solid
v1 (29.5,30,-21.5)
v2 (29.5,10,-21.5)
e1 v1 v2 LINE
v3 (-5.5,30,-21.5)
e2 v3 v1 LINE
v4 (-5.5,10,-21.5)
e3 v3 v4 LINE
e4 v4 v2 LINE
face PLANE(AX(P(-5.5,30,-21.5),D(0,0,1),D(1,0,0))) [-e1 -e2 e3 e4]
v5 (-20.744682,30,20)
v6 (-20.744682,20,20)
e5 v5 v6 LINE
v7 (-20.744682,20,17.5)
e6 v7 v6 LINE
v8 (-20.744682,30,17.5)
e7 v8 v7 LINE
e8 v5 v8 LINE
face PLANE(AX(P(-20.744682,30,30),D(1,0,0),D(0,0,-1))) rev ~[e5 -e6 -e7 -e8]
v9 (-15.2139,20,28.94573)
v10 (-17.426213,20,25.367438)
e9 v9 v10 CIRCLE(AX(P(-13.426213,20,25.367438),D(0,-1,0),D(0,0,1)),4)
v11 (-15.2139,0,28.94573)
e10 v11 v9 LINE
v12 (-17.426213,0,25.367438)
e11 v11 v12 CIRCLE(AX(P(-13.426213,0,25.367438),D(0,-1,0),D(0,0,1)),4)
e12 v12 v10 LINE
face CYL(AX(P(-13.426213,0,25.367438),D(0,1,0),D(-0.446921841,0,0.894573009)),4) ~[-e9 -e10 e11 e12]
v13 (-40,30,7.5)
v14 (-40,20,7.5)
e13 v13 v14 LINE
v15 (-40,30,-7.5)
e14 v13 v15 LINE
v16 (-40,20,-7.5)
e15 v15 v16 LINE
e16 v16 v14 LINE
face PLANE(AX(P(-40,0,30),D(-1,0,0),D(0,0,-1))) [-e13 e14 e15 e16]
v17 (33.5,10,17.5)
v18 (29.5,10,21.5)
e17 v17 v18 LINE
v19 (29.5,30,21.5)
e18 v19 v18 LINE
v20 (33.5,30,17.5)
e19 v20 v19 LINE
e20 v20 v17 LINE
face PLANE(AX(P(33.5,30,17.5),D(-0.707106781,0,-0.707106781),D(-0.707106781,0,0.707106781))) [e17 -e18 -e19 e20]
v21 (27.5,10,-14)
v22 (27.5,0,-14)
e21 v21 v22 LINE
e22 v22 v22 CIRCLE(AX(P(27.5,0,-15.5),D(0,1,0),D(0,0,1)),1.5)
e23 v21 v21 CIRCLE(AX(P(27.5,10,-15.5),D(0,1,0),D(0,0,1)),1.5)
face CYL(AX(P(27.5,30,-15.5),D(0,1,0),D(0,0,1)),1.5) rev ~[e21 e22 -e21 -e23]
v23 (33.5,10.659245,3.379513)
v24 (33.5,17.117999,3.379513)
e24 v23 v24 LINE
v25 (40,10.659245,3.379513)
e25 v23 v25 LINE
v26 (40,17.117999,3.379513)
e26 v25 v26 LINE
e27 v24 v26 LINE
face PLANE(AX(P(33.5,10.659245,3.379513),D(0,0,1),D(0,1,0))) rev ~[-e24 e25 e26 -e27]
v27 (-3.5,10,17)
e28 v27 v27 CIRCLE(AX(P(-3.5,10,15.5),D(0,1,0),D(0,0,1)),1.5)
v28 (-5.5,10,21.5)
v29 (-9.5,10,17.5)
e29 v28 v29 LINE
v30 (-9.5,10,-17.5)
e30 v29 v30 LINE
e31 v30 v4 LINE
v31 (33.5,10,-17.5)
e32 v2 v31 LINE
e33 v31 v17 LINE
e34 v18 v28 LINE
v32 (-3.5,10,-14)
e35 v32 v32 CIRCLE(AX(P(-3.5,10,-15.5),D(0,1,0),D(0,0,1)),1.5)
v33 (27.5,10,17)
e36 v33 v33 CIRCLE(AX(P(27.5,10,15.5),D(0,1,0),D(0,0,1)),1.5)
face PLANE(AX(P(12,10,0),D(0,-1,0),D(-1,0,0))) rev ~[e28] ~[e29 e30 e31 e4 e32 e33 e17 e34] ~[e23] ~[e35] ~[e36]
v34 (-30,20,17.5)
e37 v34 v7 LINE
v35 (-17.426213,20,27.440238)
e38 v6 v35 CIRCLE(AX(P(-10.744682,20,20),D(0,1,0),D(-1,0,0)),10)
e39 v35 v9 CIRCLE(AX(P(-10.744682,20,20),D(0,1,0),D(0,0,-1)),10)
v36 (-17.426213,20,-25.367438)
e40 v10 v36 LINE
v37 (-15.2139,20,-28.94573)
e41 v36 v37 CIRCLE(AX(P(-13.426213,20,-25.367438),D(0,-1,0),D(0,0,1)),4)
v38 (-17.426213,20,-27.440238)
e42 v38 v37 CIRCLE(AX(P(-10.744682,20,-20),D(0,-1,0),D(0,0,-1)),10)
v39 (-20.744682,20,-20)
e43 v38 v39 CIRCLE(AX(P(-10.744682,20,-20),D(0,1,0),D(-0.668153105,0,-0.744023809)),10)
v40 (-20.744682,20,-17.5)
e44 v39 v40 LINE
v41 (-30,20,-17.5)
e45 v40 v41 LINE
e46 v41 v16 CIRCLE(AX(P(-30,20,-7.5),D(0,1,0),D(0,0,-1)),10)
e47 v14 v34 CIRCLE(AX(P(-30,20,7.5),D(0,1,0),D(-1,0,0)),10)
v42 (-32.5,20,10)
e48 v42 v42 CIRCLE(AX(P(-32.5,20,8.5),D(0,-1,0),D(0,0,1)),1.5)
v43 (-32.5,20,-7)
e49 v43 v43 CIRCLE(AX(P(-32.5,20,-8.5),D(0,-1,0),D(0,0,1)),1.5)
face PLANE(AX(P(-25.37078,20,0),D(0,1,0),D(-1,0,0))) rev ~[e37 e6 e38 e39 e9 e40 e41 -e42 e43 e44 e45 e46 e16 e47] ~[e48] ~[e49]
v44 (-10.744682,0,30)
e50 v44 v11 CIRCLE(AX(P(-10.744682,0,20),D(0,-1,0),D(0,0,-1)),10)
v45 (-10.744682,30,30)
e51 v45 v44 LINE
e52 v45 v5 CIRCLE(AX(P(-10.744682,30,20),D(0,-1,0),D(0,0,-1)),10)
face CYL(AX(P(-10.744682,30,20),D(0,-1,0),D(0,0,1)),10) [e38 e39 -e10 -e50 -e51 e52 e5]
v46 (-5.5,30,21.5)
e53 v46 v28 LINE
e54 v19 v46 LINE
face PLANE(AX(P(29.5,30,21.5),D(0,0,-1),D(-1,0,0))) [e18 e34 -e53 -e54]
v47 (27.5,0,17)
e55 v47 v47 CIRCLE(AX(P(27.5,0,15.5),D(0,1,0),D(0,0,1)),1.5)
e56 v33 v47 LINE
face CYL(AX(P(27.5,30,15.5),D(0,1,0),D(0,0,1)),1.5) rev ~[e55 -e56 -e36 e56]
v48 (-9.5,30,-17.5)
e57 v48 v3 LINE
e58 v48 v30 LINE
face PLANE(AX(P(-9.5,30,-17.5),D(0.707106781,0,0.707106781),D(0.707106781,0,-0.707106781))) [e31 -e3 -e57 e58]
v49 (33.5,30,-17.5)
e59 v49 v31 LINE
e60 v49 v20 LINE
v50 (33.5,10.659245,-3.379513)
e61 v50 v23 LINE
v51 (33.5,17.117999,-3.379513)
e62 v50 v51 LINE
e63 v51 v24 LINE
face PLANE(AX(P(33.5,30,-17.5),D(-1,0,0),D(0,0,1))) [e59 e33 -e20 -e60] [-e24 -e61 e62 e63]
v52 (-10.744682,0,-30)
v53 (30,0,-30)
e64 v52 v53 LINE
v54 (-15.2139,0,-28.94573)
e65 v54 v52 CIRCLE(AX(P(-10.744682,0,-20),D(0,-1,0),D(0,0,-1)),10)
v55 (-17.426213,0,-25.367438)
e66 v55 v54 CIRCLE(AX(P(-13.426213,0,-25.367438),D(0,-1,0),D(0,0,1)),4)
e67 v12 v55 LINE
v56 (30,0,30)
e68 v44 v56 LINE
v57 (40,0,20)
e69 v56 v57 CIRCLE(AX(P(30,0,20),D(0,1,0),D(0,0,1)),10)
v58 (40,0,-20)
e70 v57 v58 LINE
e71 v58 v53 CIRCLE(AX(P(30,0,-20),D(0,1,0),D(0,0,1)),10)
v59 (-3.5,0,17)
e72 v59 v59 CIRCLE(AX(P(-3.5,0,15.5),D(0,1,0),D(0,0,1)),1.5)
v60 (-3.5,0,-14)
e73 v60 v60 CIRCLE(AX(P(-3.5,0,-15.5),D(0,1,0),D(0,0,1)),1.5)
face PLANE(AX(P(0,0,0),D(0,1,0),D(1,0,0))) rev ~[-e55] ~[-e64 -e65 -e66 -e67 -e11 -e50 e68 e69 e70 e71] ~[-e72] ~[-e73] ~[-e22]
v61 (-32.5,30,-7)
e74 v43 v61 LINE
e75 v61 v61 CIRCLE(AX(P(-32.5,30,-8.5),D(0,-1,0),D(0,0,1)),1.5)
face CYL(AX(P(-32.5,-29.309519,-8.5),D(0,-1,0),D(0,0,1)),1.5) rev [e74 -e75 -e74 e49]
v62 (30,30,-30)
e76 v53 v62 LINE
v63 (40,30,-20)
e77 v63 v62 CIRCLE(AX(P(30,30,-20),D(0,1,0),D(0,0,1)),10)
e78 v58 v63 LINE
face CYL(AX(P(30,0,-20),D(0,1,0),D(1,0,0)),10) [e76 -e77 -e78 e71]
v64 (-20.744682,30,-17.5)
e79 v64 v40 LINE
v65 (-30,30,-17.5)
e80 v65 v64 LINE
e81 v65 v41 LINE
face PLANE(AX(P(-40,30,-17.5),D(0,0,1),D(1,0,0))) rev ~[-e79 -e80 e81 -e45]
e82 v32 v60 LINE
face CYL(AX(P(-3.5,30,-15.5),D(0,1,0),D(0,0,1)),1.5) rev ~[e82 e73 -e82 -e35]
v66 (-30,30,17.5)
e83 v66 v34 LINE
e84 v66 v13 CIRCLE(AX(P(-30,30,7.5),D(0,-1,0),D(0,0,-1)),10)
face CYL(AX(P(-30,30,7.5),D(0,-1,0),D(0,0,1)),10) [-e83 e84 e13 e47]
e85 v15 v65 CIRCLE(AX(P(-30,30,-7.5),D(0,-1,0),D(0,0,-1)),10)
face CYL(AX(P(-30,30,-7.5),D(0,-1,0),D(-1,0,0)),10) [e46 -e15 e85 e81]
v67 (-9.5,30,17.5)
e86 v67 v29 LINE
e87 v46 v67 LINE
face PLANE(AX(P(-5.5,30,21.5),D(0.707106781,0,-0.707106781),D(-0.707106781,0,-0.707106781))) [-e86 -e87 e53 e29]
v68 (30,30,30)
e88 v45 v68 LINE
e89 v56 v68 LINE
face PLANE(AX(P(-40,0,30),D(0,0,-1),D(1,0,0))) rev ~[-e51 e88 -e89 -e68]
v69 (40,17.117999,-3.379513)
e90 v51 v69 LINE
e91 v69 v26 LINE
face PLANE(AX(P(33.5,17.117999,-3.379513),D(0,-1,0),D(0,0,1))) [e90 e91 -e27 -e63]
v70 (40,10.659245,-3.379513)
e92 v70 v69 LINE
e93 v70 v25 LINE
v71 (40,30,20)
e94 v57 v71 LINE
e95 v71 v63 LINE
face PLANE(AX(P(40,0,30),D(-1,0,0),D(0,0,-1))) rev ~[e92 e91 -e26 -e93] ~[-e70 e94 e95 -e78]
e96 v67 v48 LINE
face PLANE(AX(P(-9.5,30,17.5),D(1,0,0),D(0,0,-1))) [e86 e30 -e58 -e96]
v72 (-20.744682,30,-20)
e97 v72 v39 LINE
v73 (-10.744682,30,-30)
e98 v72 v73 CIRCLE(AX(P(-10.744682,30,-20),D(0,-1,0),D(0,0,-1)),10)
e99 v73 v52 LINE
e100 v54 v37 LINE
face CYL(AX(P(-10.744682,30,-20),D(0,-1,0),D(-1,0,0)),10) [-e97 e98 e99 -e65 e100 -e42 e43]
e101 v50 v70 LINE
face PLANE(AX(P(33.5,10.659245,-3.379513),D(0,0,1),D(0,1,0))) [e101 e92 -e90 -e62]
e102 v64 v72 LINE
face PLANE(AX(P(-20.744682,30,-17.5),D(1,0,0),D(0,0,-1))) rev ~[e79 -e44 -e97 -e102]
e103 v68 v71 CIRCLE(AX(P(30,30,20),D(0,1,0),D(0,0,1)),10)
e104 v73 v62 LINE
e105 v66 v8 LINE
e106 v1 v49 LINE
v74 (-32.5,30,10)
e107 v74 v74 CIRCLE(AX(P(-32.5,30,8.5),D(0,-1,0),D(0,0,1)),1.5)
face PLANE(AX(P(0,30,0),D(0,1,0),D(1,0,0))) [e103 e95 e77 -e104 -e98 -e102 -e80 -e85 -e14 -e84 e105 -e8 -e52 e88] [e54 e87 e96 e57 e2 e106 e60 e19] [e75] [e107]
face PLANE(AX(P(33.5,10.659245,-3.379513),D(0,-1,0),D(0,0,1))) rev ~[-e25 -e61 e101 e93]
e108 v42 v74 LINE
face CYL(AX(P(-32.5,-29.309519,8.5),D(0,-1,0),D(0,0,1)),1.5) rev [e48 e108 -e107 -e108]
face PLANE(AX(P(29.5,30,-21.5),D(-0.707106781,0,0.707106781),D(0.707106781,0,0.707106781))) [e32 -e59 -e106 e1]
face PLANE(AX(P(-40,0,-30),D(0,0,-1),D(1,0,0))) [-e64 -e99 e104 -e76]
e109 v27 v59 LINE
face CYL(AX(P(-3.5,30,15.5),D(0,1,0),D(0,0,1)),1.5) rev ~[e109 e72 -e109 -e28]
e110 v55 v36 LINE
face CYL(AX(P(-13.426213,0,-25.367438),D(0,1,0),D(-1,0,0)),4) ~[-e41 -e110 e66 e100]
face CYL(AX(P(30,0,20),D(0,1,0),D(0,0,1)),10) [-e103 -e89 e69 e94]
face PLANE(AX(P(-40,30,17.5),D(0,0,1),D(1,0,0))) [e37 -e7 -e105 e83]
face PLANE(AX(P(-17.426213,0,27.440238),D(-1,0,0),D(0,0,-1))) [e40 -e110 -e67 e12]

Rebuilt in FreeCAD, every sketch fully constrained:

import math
import FreeCAD as App
import Part
import Sketcher
from FreeCAD import Vector


def edges_at(feature, points):
    """Names of the edges that pass closest to the given points."""
    edges = feature.Shape.Edges
    near = lambda p: min(range(len(edges)), key=lambda i: edges[i].distToShape(Part.Vertex(*p))[0])
    return sorted({f"Edge{near(p) + 1}" for p in points})


def add_polygon(sketch, points):
    """Adds a closed chain of lines whose ends are joined by coincident constraints."""
    first, n = sketch.GeometryCount, len(points)
    for a, b in zip(points, points[1:] + points[:1]):
        sketch.addGeometry(Part.LineSegment(App.Vector(*a, 0), App.Vector(*b, 0)), False)
    for i in range(n):
        sketch.addConstraint(Sketcher.Constraint("Coincident", first + i, 2, first + (i + 1) % n, 1))

doc = App.newDocument("Part")
params = doc.addObject("Spreadsheet::Sheet", "Params")
for row, (alias, value) in enumerate([
    ("sketch1_width", "80 mm"),
    ("sketch1_height", "60 mm"),
    ("pad1_length", "30 mm"),
    ("fillet_radius", "10 mm"),
    ("sketch2_diameter", "3 mm"),
    ("sketch3_width", "35 mm"),
    ("pocket2_length", "20 mm"),
    ("sketch4_diameter", "3 mm"),
    ("sketch5_height", "12.5 mm"),
    ("fillet2_radius", "10 mm"),
    ("sketch6_radius", "10 mm"),
    ("sketch6_height", "15 mm"),
    ("sketch6_height2", "2.5 mm"),
    ("pocket5_length", "20 mm"),
    ("fillet3_radius", "4 mm"),
], start=1):
    params.set(f"A{row}", alias)
    params.set(f"B{row}", "=" + value)
    params.setAlias(f"B{row}", alias)

body = doc.addObject("PartDesign::Body", "Body")

# Sketch on XZ plane
sketch1 = doc.addObject("Sketcher::SketchObject", "Sketch")
body.addObject(sketch1)
sketch1.AttachmentSupport = (doc.XZ_Plane, [""])
sketch1.MapMode = "FlatFace"
add_polygon(sketch1, [(-40, -30), (-40, 30), (40, 30), (40, -30)])  # lines 0-3
sketch1.addConstraint([
    Sketcher.Constraint("Vertical", 0),
    Sketcher.Constraint("Horizontal", 1),
    Sketcher.Constraint("Vertical", 2),
    Sketcher.Constraint("Horizontal", 3),
    Sketcher.Constraint("Symmetric", 0, 2, 2, 2, -1, 1),
    Sketcher.Constraint("DistanceX", 1, 1, 1, 2, 80.0),
    Sketcher.Constraint("DistanceY", 0, 1, 0, 2, 60.0),
])
sketch1.setExpression("Constraints[9]", "Params.sketch1_width")
sketch1.setExpression("Constraints[10]", "Params.sketch1_height")
pad1 = doc.addObject("PartDesign::Pad", "Pad")
body.addObject(pad1)
pad1.Profile = sketch1
pad1.setExpression("Length", "Params.pad1_length")
pad1.Reversed = True
doc.recompute()

fillet = doc.addObject("PartDesign::Fillet", "Fillet")
body.addObject(fillet)
fillet.Base = (pad1, edges_at(pad1, [(40, 15, 30), (40, 15, -30)]))
fillet.setExpression("Radius", "Params.fillet_radius")

# Sketch on XZ plane
sketch2 = doc.addObject("Sketcher::SketchObject", "Sketch001")
body.addObject(sketch2)
sketch2.AttachmentSupport = (doc.XZ_Plane, [""])
sketch2.MapMode = "FlatFace"
sketch2.AttachmentOffset = App.Placement(Vector(0, 0, -30), App.Rotation())
sketch2.addGeometry([
    Part.Circle(Vector(-3.5, -15.5, 0), Vector(0, 0, 1), 1.5),
    Part.Circle(Vector(27.5, -15.5, 0), Vector(0, 0, 1), 1.5),
    Part.Circle(Vector(-3.5, 15.5, 0), Vector(0, 0, 1), 1.5),
    Part.Circle(Vector(27.5, 15.5, 0), Vector(0, 0, 1), 1.5),
], False)
sketch2.addConstraint([
    Sketcher.Constraint("Equal", 0, 1),
    Sketcher.Constraint("Equal", 1, 2),
    Sketcher.Constraint("Equal", 2, 3),
    Sketcher.Constraint("Symmetric", 0, 3, 2, 3, -1),
    Sketcher.Constraint("Symmetric", 1, 3, 3, 3, -1),
    Sketcher.Constraint("Horizontal", 0, 3, 1, 3),
    Sketcher.Constraint("Diameter", 0, 3.0),
    Sketcher.Constraint("DistanceX", 0, 3, 1, 3, 31.0),
    Sketcher.Constraint("DistanceY", 0, 3, 2, 3, 31.0),
    Sketcher.Constraint("DistanceX", 0, 3, -1, 1, 3.5),
])
sketch2.setExpression("Constraints[6]", "Params.sketch2_diameter")
pocket1 = doc.addObject("PartDesign::Pocket", "Pocket")
body.addObject(pocket1)
pocket1.Profile = sketch2
pocket1.Type = "ThroughAll"
pocket1.Reversed = True

# Sketch on XZ plane
sketch3 = doc.addObject("Sketcher::SketchObject", "Sketch002")
body.addObject(sketch3)
sketch3.AttachmentSupport = (doc.XZ_Plane, [""])
sketch3.MapMode = "FlatFace"
sketch3.AttachmentOffset = App.Placement(Vector(0, 0, -30), App.Rotation())
add_polygon(sketch3, [(-6, -22), (-10, -18), (-10, 18), (-6, 22), (30, 22), (34, 18), (34, -18), (30, -22)])  # lines 0-7
sketch3.addConstraint([
    Sketcher.Constraint("Vertical", 1),
    Sketcher.Constraint("Horizontal", 3),
    Sketcher.Constraint("Vertical", 5),
    Sketcher.Constraint("Horizontal", 7),
    Sketcher.Constraint("Symmetric", 3, 2, 6, 2, -1),
    Sketcher.Constraint("Perpendicular", 0, 2),
    Sketcher.Constraint("Perpendicular", 2, 4),
    Sketcher.Constraint("Perpendicular", 4, 6),
    Sketcher.Constraint("Horizontal", 1, 2, 4, 2),
    Sketcher.Constraint("Horizontal", 0, 2, 5, 2),
    Sketcher.Constraint("Vertical", 2, 2, 7, 2),
    Sketcher.Constraint("Equal", 7, 1),
    Sketcher.Constraint("DistanceX", 3, 1, 3, 2, 35.0),
    Sketcher.Constraint("DistanceX", 1, 2, 2, 2, 4.0),
    Sketcher.Constraint("DistanceX", 0, 2, -1, 1, 9.5),
])
sketch3.setExpression("Constraints[20]", "Params.sketch3_width")
pocket2 = doc.addObject("PartDesign::Pocket", "Pocket001")
body.addObject(pocket2)
pocket2.Profile = sketch3
pocket2.setExpression("Length", "Params.pocket2_length")
pocket2.Reversed = True

# Sketch on XZ plane
sketch4 = doc.addObject("Sketcher::SketchObject", "Sketch003")
body.addObject(sketch4)
sketch4.AttachmentSupport = (doc.XZ_Plane, [""])
sketch4.MapMode = "FlatFace"
sketch4.AttachmentOffset = App.Placement(Vector(0, 0, -30), App.Rotation())
sketch4.addGeometry([
    Part.Circle(Vector(-32.5, -8.5, 0), Vector(0, 0, 1), 1.5),
    Part.Circle(Vector(-32.5, 8.5, 0), Vector(0, 0, 1), 1.5),
], False)
sketch4.addConstraint([
    Sketcher.Constraint("Equal", 0, 1),
    Sketcher.Constraint("Symmetric", 0, 3, 1, 3, -1),
    Sketcher.Constraint("Diameter", 0, 3.0),
    Sketcher.Constraint("DistanceY", 0, 3, 1, 3, 17.0),
    Sketcher.Constraint("DistanceX", 0, 3, -1, 1, 32.5),
])
sketch4.setExpression("Constraints[2]", "Params.sketch4_diameter")
pocket3 = doc.addObject("PartDesign::Pocket", "Pocket002")
body.addObject(pocket3)
pocket3.Profile = sketch4
pocket3.Type = "ThroughAll"
pocket3.Midplane = True

# Sketch on XZ plane
sketch5 = doc.addObject("Sketcher::SketchObject", "Sketch004")
body.addObject(sketch5)
sketch5.AttachmentSupport = (doc.XZ_Plane, [""])
sketch5.MapMode = "FlatFace"
sketch5.AttachmentOffset = App.Placement(Vector(0, 0, -30), App.Rotation())
add_polygon(sketch5, [(-40, -30), (-40, -18), (-21, -18), (-21, -30)])  # lines 0-3
add_polygon(sketch5, [(-40, 18), (-40, 30), (-21, 30), (-21, 18)])  # lines 4-7
sketch5.addConstraint([
    Sketcher.Constraint("Vertical", 0),
    Sketcher.Constraint("Horizontal", 1),
    Sketcher.Constraint("Vertical", 2),
    Sketcher.Constraint("Horizontal", 3),
    Sketcher.Constraint("Vertical", 4),
    Sketcher.Constraint("Horizontal", 5),
    Sketcher.Constraint("Vertical", 6),
    Sketcher.Constraint("Horizontal", 7),
    Sketcher.Constraint("Symmetric", 3, 2, 4, 2, -1),
    Sketcher.Constraint("Symmetric", 1, 2, 6, 2, -1),
    Sketcher.Constraint("DistanceY", 0, 1, 0, 2, 12.5),
    Sketcher.Constraint("DistanceX", 0, 2, -1, 1, 40.0),
    Sketcher.Constraint("DistanceY", 2, 2, -1, 1, 30.0),
    Sketcher.Constraint("DistanceX", 1, 1, 1, 2, 19.255318),
])
sketch5.setExpression("Constraints[18]", "Params.sketch5_height")
pocket4 = doc.addObject("PartDesign::Pocket", "Pocket003")
body.addObject(pocket4)
pocket4.Profile = sketch5
pocket4.Type = "ThroughAll"
pocket4.Reversed = True
doc.recompute()

fillet2 = doc.addObject("PartDesign::Fillet", "Fillet001")
body.addObject(fillet2)
fillet2.Base = (pocket4, edges_at(pocket4, [
    (-20.745, 15, 30),
    (-40, 15, 17.5),
    (-20.745, 15, -30),
    (-40, 15, -17.5),
]))
fillet2.setExpression("Radius", "Params.fillet2_radius")

# Sketch on XZ plane
sketch6 = doc.addObject("Sketcher::SketchObject", "Sketch005")
body.addObject(sketch6)
sketch6.AttachmentSupport = (doc.XZ_Plane, [""])
sketch6.MapMode = "FlatFace"
sketch6.addGeometry([
    Part.LineSegment(Vector(-17.4, -27.4, 0), Vector(-17.4, 27.4, 0)),  # 0
    Part.ArcOfCircle(Part.Circle(Vector(-10.7, 20, 0), Vector(0, 0, 1), 10), math.radians(132), math.radians(180)),  # 1
    Part.LineSegment(Vector(-20.7, 20, 0), Vector(-20.7, 17.5, 0)),  # 2
    Part.LineSegment(Vector(-20.7, 17.5, 0), Vector(-30, 17.5, 0)),  # 3
    Part.ArcOfCircle(Part.Circle(Vector(-30, 7.5, 0), Vector(0, 0, 1), 10), math.radians(90), math.radians(180)),  # 4
    Part.LineSegment(Vector(-40, 7.5, 0), Vector(-40, -7.5, 0)),  # 5
    Part.ArcOfCircle(Part.Circle(Vector(-30, -7.5, 0), Vector(0, 0, 1), 10), math.radians(180), math.radians(270)),  # 6
    Part.LineSegment(Vector(-30, -17.5, 0), Vector(-20.7, -17.5, 0)),  # 7
    Part.LineSegment(Vector(-20.7, -17.5, 0), Vector(-20.7, -20, 0)),  # 8
    Part.ArcOfCircle(Part.Circle(Vector(-10.7, -20, 0), Vector(0, 0, 1), 10), math.radians(180), math.radians(228)),  # 9
], False)
sketch6.addConstraint([
    Sketcher.Constraint("Coincident", 0, 2, 1, 1),
    Sketcher.Constraint("Tangent", 1, 2, 2, 1),
    Sketcher.Constraint("Coincident", 2, 2, 3, 1),
    Sketcher.Constraint("Tangent", 3, 2, 4, 1),
    Sketcher.Constraint("Tangent", 4, 2, 5, 1),
    Sketcher.Constraint("Tangent", 5, 2, 6, 1),
    Sketcher.Constraint("Tangent", 6, 2, 7, 1),
    Sketcher.Constraint("Coincident", 7, 2, 8, 1),
    Sketcher.Constraint("Tangent", 8, 2, 9, 1),
    Sketcher.Constraint("Coincident", 9, 2, 0, 1),
    Sketcher.Constraint("Vertical", 0),
    Sketcher.Constraint("Vertical", 2),
    Sketcher.Constraint("Horizontal", 3),
    Sketcher.Constraint("Vertical", 5),
    Sketcher.Constraint("Horizontal", 7),
    Sketcher.Constraint("Vertical", 8),
    Sketcher.Constraint("Equal", 1, 4),
    Sketcher.Constraint("Equal", 4, 6),
    Sketcher.Constraint("Equal", 6, 9),
    Sketcher.Constraint("Symmetric", 1, 3, 9, 3, -1),
    Sketcher.Constraint("Equal", 2, 8),
    Sketcher.Constraint("Radius", 1, 10.0),
    Sketcher.Constraint("DistanceY", 5, 2, 5, 1, 15.0),
    Sketcher.Constraint("DistanceY", 2, 2, 2, 1, 2.5),
    Sketcher.Constraint("DistanceX", 4, 3, -1, 1, 30.0),
    Sketcher.Constraint("DistanceX", 3, 2, 3, 1, 9.255318),
    Sketcher.Constraint("DistanceY", 0, 1, 0, 2, 54.880476),
])
sketch6.setExpression("Constraints[21]", "Params.sketch6_radius")
sketch6.setExpression("Constraints[22]", "Params.sketch6_height")
sketch6.setExpression("Constraints[23]", "Params.sketch6_height2")
pocket5 = doc.addObject("PartDesign::Pocket", "Pocket004")
body.addObject(pocket5)
pocket5.Profile = sketch6
pocket5.setExpression("Length", "Params.pocket5_length")
doc.recompute()

fillet3 = doc.addObject("PartDesign::Fillet", "Fillet002")
body.addObject(fillet3)
fillet3.Base = (pocket5, edges_at(pocket5, [(-17.426, 10, 27.44), (-17.426, 10, -27.44)]))
fillet3.setExpression("Radius", "Params.fillet3_radius")

# Sketch on YZ plane
sketch7 = doc.addObject("Sketcher::SketchObject", "Sketch006")
body.addObject(sketch7)
sketch7.AttachmentSupport = (doc.YZ_Plane, [""])
sketch7.MapMode = "FlatFace"
sketch7.AttachmentOffset = App.Placement(Vector(0, 0, 33.5), App.Rotation())
add_polygon(sketch7, [(17, -3), (11, -3), (11, 3), (17, 3)])  # lines 0-3
sketch7.addConstraint([
    Sketcher.Constraint("Horizontal", 0),
    Sketcher.Constraint("Vertical", 1),
    Sketcher.Constraint("Horizontal", 2),
    Sketcher.Constraint("Vertical", 3),
    Sketcher.Constraint("DistanceX", -1, 1, 2, 2, 17.117999),
    Sketcher.Constraint("DistanceX", 0, 2, 0, 1, 6.458754),
    Sketcher.Constraint("DistanceY", 1, 1, 1, 2, 6.759025),
    Sketcher.Constraint("DistanceY", 0, 2, -1, 1, 3.379513),
])
pocket6 = doc.addObject("PartDesign::Pocket", "Pocket005")
body.addObject(pocket6)
pocket6.Profile = sketch7
pocket6.Type = "ThroughAll"
pocket6.Reversed = True

doc.recompute()
